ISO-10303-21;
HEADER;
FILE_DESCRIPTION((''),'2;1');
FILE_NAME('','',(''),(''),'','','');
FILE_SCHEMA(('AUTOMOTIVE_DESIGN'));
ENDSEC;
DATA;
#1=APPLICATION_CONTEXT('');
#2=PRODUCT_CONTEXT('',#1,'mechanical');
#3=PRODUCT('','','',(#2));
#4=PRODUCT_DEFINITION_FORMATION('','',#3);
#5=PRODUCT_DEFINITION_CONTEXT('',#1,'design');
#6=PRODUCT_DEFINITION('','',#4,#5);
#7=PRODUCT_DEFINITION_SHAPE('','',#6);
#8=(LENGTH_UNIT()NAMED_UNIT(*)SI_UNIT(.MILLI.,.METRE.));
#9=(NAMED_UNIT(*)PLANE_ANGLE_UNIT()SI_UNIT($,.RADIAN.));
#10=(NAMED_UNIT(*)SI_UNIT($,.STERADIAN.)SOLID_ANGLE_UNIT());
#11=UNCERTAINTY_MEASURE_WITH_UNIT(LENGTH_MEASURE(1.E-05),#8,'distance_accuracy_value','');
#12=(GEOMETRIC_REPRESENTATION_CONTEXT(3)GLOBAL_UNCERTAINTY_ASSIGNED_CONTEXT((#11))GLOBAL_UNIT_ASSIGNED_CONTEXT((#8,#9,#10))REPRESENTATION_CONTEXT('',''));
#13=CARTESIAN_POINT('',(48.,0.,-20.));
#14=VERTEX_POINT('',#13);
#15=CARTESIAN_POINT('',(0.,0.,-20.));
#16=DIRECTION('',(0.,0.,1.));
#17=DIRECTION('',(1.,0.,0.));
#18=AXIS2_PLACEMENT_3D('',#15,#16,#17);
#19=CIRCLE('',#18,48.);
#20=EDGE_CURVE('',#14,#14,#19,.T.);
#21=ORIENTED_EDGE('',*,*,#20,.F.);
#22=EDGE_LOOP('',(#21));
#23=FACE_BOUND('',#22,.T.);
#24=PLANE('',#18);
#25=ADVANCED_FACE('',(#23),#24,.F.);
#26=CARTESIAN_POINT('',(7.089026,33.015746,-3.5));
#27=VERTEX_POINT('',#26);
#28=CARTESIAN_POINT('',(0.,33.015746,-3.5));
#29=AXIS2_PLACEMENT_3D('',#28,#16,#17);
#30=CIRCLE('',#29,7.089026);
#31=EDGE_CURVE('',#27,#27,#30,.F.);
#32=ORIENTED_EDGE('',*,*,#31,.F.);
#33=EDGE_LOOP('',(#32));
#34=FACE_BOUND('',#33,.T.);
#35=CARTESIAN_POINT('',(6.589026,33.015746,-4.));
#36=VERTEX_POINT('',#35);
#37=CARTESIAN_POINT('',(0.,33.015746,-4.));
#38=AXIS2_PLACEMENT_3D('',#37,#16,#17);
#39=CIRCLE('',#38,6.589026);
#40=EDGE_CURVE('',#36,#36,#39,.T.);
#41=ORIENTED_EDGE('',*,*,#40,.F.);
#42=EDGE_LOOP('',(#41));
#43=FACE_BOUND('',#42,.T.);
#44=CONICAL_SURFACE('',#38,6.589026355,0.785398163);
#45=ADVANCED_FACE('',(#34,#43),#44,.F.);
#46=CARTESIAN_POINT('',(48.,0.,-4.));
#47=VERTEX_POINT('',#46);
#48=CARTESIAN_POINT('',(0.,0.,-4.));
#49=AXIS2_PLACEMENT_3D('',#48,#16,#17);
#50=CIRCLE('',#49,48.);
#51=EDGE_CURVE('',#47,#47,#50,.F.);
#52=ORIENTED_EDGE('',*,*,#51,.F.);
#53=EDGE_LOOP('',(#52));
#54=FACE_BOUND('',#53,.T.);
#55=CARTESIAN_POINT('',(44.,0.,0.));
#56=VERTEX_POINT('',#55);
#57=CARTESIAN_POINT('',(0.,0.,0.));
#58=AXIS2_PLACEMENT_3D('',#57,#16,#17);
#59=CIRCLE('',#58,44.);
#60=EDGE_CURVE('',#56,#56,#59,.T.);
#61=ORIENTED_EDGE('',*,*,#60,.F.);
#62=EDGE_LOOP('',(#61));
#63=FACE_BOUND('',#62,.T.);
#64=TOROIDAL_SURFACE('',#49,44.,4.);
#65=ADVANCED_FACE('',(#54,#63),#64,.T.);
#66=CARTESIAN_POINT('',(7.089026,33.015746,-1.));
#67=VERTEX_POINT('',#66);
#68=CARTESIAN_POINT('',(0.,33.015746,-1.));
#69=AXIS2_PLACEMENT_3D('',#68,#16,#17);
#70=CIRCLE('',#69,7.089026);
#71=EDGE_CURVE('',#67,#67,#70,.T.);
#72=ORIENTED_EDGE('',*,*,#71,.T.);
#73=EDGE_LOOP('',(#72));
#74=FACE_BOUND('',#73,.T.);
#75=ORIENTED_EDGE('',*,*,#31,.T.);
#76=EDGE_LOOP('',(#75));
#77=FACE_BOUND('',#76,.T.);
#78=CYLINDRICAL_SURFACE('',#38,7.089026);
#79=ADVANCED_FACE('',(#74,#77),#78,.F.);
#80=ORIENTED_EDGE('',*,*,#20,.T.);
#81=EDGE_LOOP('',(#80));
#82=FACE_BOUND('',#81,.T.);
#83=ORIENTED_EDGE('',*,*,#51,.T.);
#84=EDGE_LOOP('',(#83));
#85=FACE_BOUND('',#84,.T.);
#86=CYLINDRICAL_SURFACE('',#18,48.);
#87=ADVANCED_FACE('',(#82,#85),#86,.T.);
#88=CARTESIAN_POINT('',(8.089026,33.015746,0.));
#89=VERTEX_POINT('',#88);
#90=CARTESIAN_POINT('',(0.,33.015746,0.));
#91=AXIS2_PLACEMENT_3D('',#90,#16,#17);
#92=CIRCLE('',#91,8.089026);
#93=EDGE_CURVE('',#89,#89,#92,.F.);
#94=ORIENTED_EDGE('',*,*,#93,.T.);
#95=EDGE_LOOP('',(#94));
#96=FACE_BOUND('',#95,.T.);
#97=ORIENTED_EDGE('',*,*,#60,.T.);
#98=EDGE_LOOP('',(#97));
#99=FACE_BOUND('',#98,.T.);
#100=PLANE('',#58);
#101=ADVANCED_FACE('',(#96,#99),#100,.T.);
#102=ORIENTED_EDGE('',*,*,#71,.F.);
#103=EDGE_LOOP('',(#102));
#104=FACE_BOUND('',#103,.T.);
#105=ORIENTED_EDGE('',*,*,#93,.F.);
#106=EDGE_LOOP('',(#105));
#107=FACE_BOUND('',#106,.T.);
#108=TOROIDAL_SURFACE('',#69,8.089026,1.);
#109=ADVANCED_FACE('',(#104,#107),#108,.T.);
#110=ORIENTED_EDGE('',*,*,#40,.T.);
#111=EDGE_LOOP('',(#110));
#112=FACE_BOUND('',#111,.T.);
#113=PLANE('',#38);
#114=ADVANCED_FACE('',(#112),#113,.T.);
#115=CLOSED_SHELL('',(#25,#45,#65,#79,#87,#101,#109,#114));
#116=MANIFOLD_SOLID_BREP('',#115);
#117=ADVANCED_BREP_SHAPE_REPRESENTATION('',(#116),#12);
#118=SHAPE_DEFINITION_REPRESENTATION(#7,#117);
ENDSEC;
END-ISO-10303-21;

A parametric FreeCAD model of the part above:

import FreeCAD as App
import Part
import Sketcher


def edges_at(feature, points):
    """Names of the edges that pass closest to the given points."""
    edges = feature.Shape.Edges
    near = lambda p: min(range(len(edges)), key=lambda i: edges[i].distToShape(Part.Vertex(*p))[0])
    return sorted({f"Edge{near(p) + 1}" for p in points})

doc = App.newDocument("Part")
body = doc.addObject("PartDesign::Body", "Body")

# Sketch on XY plane
sketch1 = body.newObject("Sketcher::SketchObject", "Sketch")
sketch1.AttachmentSupport = (doc.getObject("XY_Plane"), [""])
sketch1.MapMode = "FlatFace"
sketch1.addGeometry(Part.Circle(App.Vector(0, 0, 0), App.Vector(0, 0, 1), 48), False)
sketch1.addConstraint(Sketcher.Constraint("Coincident", 0, 3, -1, 1))
sketch1.addConstraint(Sketcher.Constraint("Diameter", 0, 96.0))
pad1 = body.newObject("PartDesign::Pad", "Pad")
pad1.Profile = sketch1
pad1.Length = 20
pad1.Reversed = True
doc.recompute()

fillet = body.newObject("PartDesign::Fillet", "Fillet")
fillet.Base = (pad1, edges_at(pad1, [(-48, 0, 0)]))
fillet.Radius = 4

# Sketch on XY plane
sketch2 = body.newObject("Sketcher::SketchObject", "Sketch001")
sketch2.AttachmentSupport = (doc.getObject("XY_Plane"), [""])
sketch2.MapMode = "FlatFace"
sketch2.addGeometry(Part.Circle(App.Vector(0, 33, 0), App.Vector(0, 0, 1), 7), False)
sketch2.addConstraint(Sketcher.Constraint("PointOnObject", 0, 3, -2))
sketch2.addConstraint(Sketcher.Constraint("Diameter", 0, 14.178053))
sketch2.addConstraint(Sketcher.Constraint("DistanceY", -1, 1, 0, 3, 33.015746))
pocket1 = body.newObject("PartDesign::Pocket", "Pocket")
pocket1.Profile = sketch2
pocket1.Length = 4
doc.recompute()

fillet2 = body.newObject("PartDesign::Fillet", "Fillet001")
fillet2.Base = (pocket1, edges_at(pocket1, [(-7.089, 33.016, 0)]))
fillet2.Radius = 1
doc.recompute()

chamfer = body.newObject("PartDesign::Chamfer", "Chamfer")
chamfer.Base = (fillet2, edges_at(fillet2, [(-7.089, 33.016, -4)]))
chamfer.Size = 0.5

doc.recompute()
